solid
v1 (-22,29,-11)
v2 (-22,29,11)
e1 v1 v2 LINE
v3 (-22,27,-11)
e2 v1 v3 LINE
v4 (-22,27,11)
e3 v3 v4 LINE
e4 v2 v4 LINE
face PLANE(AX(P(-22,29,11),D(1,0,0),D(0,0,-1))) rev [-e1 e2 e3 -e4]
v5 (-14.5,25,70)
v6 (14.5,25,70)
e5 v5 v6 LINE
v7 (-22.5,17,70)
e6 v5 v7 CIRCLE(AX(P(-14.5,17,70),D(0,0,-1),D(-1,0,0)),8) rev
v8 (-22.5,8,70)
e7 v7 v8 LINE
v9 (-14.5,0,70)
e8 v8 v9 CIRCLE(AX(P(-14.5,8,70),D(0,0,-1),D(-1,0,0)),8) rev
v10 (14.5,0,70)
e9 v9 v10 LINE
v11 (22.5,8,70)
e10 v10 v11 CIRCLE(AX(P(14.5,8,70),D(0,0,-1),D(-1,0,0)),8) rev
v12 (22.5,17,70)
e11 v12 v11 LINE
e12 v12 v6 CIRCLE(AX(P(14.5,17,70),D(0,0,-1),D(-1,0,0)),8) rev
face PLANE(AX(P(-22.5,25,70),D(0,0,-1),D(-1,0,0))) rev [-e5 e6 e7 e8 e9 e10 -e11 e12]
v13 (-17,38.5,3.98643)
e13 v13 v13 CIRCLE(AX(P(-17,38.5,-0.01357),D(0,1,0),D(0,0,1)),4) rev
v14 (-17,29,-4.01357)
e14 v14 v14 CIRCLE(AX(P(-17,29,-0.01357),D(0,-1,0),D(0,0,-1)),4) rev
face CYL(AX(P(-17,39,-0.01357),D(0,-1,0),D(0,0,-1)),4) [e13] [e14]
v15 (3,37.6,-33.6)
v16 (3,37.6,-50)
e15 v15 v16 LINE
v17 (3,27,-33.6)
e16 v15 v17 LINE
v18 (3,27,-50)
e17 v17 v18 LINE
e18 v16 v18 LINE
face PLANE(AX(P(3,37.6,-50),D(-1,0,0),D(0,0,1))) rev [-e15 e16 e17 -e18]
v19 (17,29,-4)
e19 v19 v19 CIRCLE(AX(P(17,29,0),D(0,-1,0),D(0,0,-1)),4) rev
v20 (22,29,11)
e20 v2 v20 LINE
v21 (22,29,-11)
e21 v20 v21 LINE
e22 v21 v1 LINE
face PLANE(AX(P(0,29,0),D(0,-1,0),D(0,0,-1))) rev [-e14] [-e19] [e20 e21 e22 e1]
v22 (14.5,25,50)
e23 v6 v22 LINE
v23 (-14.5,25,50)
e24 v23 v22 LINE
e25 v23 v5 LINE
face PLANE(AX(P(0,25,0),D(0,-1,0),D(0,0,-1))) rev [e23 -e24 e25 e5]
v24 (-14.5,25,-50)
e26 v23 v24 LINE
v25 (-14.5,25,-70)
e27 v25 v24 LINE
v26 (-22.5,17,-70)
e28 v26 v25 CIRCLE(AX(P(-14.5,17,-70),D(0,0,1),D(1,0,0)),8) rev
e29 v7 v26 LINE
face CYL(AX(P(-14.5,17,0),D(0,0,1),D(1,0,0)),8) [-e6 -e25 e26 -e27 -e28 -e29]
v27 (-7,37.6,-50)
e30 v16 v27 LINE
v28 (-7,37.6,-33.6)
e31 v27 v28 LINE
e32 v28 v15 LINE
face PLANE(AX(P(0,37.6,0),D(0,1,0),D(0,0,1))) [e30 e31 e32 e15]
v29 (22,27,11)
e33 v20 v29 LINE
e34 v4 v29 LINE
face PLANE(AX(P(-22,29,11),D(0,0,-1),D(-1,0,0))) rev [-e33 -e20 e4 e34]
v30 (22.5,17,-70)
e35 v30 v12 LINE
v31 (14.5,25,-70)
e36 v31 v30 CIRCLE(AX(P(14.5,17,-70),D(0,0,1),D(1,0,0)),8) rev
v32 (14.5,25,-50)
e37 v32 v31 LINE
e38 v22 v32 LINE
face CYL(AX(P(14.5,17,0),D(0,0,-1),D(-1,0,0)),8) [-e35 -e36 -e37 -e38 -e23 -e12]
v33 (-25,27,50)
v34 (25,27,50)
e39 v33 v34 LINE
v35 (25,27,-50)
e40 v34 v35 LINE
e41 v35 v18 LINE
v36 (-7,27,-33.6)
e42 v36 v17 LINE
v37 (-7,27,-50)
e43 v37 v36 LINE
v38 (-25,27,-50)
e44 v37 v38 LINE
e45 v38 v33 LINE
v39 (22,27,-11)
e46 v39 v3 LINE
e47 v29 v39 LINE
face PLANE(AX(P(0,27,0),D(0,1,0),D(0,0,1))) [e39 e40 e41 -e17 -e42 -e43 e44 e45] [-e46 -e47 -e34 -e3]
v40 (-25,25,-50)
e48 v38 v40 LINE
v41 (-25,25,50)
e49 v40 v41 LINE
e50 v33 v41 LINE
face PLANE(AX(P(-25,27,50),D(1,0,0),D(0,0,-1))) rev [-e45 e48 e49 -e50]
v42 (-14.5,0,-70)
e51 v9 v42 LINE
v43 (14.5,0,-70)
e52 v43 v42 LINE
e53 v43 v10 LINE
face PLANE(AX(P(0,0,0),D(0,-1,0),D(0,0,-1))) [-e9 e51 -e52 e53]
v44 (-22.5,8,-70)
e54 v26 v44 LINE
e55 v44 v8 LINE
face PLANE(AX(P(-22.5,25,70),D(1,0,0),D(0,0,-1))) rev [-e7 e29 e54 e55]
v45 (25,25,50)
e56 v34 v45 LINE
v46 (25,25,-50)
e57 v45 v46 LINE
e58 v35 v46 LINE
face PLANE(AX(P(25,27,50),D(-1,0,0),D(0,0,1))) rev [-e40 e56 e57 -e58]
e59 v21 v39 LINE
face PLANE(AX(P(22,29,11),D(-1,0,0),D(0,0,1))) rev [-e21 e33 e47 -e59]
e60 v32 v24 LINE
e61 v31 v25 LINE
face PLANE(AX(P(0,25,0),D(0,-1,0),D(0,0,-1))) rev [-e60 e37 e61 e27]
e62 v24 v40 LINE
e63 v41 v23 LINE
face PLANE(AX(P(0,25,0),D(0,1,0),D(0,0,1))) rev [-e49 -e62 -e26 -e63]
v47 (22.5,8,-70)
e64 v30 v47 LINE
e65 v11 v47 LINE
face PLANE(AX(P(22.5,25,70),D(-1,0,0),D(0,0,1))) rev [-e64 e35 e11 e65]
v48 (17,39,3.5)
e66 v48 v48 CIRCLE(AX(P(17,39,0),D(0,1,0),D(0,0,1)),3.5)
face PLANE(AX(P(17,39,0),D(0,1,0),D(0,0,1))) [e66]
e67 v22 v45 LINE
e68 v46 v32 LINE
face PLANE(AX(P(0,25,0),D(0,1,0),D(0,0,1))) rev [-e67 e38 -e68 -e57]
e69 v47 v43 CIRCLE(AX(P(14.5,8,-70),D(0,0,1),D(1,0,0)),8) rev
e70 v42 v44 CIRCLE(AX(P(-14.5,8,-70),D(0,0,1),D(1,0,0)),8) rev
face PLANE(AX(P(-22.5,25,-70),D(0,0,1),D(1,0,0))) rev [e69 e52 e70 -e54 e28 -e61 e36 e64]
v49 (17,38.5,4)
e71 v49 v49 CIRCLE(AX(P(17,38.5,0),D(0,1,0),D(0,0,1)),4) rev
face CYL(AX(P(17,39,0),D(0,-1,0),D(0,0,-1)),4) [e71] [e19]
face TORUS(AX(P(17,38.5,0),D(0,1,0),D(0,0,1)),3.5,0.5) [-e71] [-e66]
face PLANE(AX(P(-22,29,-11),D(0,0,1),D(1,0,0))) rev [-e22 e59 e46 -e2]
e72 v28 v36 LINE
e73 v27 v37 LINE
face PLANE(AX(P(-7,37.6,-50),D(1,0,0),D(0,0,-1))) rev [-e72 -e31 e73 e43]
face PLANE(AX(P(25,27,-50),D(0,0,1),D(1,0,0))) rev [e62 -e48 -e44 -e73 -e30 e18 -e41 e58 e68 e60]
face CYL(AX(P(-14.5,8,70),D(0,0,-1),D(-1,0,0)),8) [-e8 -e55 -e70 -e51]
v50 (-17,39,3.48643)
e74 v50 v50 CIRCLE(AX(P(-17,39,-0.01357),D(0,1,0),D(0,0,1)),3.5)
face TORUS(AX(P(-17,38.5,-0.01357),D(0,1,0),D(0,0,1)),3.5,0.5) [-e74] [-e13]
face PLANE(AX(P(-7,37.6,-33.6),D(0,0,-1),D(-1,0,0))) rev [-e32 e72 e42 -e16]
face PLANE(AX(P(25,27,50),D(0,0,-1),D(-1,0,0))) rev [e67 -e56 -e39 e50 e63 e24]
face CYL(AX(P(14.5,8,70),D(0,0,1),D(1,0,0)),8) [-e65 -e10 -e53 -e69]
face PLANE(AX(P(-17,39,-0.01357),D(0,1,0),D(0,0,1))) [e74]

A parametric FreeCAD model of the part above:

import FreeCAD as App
import Part
import Sketcher
from FreeCAD import Vector
Q = App.Units.Quantity


def edges_at(feature, points):
    """Names of the edges that pass closest to the given points."""
    edges = feature.Shape.Edges
    near = lambda p: min(range(len(edges)), key=lambda i: edges[i].distToShape(Part.Vertex(*p))[0])
    return sorted({f"Edge{near(p) + 1}" for p in points})


def add_polygon(sketch, points):
    """Adds a closed chain of lines whose ends are joined by coincident constraints."""
    first, n = sketch.GeometryCount, len(points)
    for a, b in zip(points, points[1:] + points[:1]):
        sketch.addGeometry(Part.LineSegment(App.Vector(*a, 0), App.Vector(*b, 0)), False)
    for i in range(n):
        sketch.addConstraint(Sketcher.Constraint("Coincident", first + i, 2, first + (i + 1) % n, 1))

doc = App.newDocument("Part")
body = doc.addObject("PartDesign::Body", "Body")

sketch1 = body.newObject("Sketcher::SketchObject", "Sketch")
sketch1.AttachmentSupport = (doc.getObject("XZ_Plane"), [""])
sketch1.MapMode = "FlatFace"
add_polygon(sketch1, [(-22, -70), (-22, 70), (22, 70), (22, -70)])
sketch1.addConstraint(Sketcher.Constraint("Vertical", 0))
sketch1.addConstraint(Sketcher.Constraint("Horizontal", 1))
sketch1.addConstraint(Sketcher.Constraint("Vertical", 2))
sketch1.addConstraint(Sketcher.Constraint("Horizontal", 3))
sketch1.addConstraint(Sketcher.Constraint("Symmetric", 0, 2, 2, 2, -1, 1))
sketch1.addConstraint(Sketcher.Constraint("DistanceX", 1, 1, 1, 2, Q("45 mm")))
sketch1.addConstraint(Sketcher.Constraint("DistanceY", 0, 1, 0, 2, Q("140 mm")))
pad1 = body.newObject("PartDesign::Pad", "Pad")
pad1.Profile = sketch1
pad1.Length = 25
pad1.Reversed = True
doc.recompute()

fillet = body.newObject("PartDesign::Fillet", "Fillet")
fillet.Base = (pad1, edges_at(pad1, [
    (-22.5, 25, 0),
    (22.5, 25, 0),
    (-22.5, 0, 0),
    (22.5, 0, 0),
]))
fillet.Radius = 8

sketch2 = body.newObject("Sketcher::SketchObject", "Sketch001")
sketch2.AttachmentSupport = (doc.getObject("XZ_Plane"), [""])
sketch2.MapMode = "FlatFace"
sketch2.AttachmentOffset = App.Placement(Vector(0, 0, -25), App.Rotation())
add_polygon(sketch2, [(-25, -50), (-25, 50), (25, 50), (25, -50)])
sketch2.addConstraint(Sketcher.Constraint("Vertical", 0))
sketch2.addConstraint(Sketcher.Constraint("Horizontal", 1))
sketch2.addConstraint(Sketcher.Constraint("Vertical", 2))
sketch2.addConstraint(Sketcher.Constraint("Horizontal", 3))
sketch2.addConstraint(Sketcher.Constraint("Symmetric", 0, 2, 2, 2, -1, 1))
sketch2.addConstraint(Sketcher.Constraint("DistanceX", 1, 1, 1, 2, Q("50 mm")))
sketch2.addConstraint(Sketcher.Constraint("DistanceY", 0, 1, 0, 2, Q("100 mm")))
pad2 = body.newObject("PartDesign::Pad", "Pad001")
pad2.Profile = sketch2
pad2.Length = 2
pad2.Reversed = True

sketch3 = body.newObject("Sketcher::SketchObject", "Sketch002")
sketch3.AttachmentSupport = (doc.getObject("XZ_Plane"), [""])
sketch3.MapMode = "FlatFace"
sketch3.AttachmentOffset = App.Placement(Vector(0, 0, -27), App.Rotation())
add_polygon(sketch3, [(-7, -50), (-7, -34), (3, -34), (3, -50)])
sketch3.addConstraint(Sketcher.Constraint("Vertical", 0))
sketch3.addConstraint(Sketcher.Constraint("Horizontal", 1))
sketch3.addConstraint(Sketcher.Constraint("Vertical", 2))
sketch3.addConstraint(Sketcher.Constraint("Horizontal", 3))
sketch3.addConstraint(Sketcher.Constraint("DistanceX", 1, 1, 1, 2, Q("10 mm")))
sketch3.addConstraint(Sketcher.Constraint("DistanceY", 0, 1, 0, 2, Q("16.4 mm")))
sketch3.addConstraint(Sketcher.Constraint("DistanceX", 0, 2, -1, 1, Q("7 mm")))
sketch3.addConstraint(Sketcher.Constraint("DistanceY", 2, 2, -1, 1, Q("50 mm")))
pad3 = body.newObject("PartDesign::Pad", "Pad002")
pad3.Profile = sketch3
pad3.Length = 10.6
pad3.Reversed = True
body2 = doc.addObject("PartDesign::Body", "Body001")

sketch4 = body2.newObject("Sketcher::SketchObject", "Sketch003")
sketch4.AttachmentSupport = (doc.getObject("XZ_Plane001"), [""])
sketch4.MapMode = "FlatFace"
sketch4.AttachmentOffset = App.Placement(Vector(0, 0, -27), App.Rotation())
add_polygon(sketch4, [(-22, -11), (-22, 11), (22, 11), (22, -11)])
sketch4.addConstraint(Sketcher.Constraint("Vertical", 0))
sketch4.addConstraint(Sketcher.Constraint("Horizontal", 1))
sketch4.addConstraint(Sketcher.Constraint("Vertical", 2))
sketch4.addConstraint(Sketcher.Constraint("Horizontal", 3))
sketch4.addConstraint(Sketcher.Constraint("Symmetric", 0, 2, 2, 2, -1, 1))
sketch4.addConstraint(Sketcher.Constraint("DistanceX", 1, 1, 1, 2, Q("44 mm")))
sketch4.addConstraint(Sketcher.Constraint("DistanceY", 0, 1, 0, 2, Q("22 mm")))
pad4 = body2.newObject("PartDesign::Pad", "Pad003")
pad4.Profile = sketch4
pad4.Length = 2
pad4.Reversed = True
doc.recompute()

boolean = body.newObject("PartDesign::Boolean", "Boolean")
boolean.Type = "Fuse"
boolean.addObjects([body2])

sketch5 = body.newObject("Sketcher::SketchObject", "Sketch004")
sketch5.AttachmentSupport = (doc.getObject("XZ_Plane"), [""])
sketch5.MapMode = "FlatFace"
sketch5.AttachmentOffset = App.Placement(Vector(0, 0, -29), App.Rotation())
sketch5.addGeometry(Part.Circle(Vector(17, 0, 0), Vector(0, 0, 1), 4), False)
sketch5.addGeometry(Part.Circle(Vector(-17, 0, 0), Vector(0, 0, 1), 4), False)
sketch5.addConstraint(Sketcher.Constraint("Equal", 0, 1))
sketch5.addConstraint(Sketcher.Constraint("PointOnObject", 0, 3, -1))
sketch5.addConstraint(Sketcher.Constraint("Diameter", 0, Q("8 mm")))
sketch5.addConstraint(Sketcher.Constraint("DistanceX", -1, 1, 0, 3, Q("17 mm")))
sketch5.addConstraint(Sketcher.Constraint("DistanceX", 1, 3, -1, 1, Q("17 mm")))
sketch5.addConstraint(Sketcher.Constraint("DistanceY", 1, 3, -1, 1, Q("0.01357 mm")))
pad5 = body.newObject("PartDesign::Pad", "Pad004")
pad5.Profile = sketch5
pad5.Length = 10
pad5.Reversed = True
doc.recompute()

fillet2 = body.newObject("PartDesign::Fillet", "Fillet001")
fillet2.Base = (pad5, edges_at(pad5, [(17, 39, 4), (-17, 39, 3.986)]))
fillet2.Radius = 0.5

doc.recompute()
